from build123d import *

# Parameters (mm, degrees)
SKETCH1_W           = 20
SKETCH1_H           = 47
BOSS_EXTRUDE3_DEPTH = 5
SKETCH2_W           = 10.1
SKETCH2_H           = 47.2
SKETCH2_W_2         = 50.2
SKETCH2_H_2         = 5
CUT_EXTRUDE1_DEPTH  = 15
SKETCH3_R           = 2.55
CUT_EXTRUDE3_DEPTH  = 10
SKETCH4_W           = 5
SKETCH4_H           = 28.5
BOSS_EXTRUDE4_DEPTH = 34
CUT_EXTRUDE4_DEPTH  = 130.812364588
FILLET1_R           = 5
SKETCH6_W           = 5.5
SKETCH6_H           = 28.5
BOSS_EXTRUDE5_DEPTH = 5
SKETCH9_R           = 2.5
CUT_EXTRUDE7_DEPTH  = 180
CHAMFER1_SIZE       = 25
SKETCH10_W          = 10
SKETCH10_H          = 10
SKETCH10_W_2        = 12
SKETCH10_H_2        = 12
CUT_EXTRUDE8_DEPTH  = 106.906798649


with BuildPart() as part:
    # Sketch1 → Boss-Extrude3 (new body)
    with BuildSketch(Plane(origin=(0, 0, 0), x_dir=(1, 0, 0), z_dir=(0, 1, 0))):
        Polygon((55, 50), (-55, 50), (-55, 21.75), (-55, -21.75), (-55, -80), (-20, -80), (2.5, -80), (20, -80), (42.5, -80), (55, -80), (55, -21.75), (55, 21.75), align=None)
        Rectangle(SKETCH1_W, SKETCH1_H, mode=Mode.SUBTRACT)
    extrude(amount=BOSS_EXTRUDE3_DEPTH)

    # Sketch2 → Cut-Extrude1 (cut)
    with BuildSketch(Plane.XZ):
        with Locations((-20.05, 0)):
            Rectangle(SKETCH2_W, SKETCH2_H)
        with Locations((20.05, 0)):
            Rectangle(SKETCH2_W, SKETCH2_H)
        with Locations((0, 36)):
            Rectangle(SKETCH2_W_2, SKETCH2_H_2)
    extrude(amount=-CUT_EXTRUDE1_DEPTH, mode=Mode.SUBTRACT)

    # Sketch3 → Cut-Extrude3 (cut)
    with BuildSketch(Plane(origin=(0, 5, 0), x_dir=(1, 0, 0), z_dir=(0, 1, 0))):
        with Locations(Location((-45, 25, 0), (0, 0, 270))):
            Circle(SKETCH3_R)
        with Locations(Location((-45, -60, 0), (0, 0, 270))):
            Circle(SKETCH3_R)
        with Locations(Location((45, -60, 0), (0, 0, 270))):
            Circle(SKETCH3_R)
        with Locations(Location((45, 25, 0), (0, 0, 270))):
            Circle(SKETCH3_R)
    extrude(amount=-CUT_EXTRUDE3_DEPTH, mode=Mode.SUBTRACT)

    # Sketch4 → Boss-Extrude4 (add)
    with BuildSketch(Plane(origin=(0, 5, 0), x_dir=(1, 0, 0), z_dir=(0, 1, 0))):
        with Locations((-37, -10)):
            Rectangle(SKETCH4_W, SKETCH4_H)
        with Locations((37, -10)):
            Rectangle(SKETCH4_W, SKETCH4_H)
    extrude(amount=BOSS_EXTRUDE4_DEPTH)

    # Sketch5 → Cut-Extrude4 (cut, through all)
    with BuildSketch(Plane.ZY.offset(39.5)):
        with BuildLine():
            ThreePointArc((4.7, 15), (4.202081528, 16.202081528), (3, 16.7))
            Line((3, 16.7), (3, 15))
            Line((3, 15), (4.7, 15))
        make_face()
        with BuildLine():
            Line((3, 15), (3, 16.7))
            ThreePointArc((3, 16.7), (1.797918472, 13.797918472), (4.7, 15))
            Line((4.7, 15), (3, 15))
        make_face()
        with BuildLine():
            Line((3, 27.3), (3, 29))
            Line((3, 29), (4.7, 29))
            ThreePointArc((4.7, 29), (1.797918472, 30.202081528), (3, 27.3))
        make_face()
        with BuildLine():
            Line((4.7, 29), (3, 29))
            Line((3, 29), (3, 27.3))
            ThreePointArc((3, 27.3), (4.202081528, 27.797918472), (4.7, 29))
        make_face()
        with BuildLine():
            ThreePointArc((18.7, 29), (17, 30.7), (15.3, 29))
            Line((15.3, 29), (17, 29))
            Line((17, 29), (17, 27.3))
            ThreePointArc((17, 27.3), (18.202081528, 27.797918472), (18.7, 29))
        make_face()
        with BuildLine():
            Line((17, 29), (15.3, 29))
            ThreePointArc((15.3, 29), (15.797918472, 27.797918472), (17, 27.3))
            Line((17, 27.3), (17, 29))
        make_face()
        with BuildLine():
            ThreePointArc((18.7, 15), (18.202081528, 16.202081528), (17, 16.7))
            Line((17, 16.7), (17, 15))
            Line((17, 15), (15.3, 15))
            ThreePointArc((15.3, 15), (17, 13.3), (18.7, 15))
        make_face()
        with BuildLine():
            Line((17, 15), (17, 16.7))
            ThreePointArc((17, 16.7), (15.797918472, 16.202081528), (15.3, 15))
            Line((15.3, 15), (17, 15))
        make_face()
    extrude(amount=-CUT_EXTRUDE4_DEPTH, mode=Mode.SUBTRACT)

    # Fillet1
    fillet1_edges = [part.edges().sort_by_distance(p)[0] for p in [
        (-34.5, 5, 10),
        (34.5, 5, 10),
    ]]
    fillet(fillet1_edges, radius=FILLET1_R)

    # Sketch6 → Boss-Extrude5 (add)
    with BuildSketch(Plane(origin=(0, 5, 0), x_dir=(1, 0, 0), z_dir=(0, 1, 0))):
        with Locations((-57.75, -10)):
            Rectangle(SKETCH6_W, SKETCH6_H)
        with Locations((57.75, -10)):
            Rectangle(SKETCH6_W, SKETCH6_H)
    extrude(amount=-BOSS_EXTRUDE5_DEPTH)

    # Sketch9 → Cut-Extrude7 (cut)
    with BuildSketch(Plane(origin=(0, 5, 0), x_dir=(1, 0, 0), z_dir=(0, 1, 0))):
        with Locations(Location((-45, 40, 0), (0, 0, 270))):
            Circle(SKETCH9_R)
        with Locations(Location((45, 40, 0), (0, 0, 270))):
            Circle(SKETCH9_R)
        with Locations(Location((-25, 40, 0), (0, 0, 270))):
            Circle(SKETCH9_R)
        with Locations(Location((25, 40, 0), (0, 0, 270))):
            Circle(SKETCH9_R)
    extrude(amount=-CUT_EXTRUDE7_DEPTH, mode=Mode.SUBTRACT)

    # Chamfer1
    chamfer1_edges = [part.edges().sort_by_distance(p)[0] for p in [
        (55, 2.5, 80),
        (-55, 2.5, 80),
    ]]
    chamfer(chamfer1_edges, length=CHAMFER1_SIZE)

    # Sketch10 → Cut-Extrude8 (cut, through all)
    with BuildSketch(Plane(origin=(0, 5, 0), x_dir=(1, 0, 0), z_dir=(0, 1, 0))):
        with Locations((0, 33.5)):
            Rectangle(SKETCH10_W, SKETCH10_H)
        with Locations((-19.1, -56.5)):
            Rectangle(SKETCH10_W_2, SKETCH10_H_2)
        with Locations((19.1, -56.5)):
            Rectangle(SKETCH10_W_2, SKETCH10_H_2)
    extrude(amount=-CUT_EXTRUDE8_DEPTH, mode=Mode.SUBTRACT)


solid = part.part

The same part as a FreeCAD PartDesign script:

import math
import FreeCAD as App
import Part
import Sketcher


def edges_at(feature, points):
    """Names of the edges that pass closest to the given points."""
    edges = feature.Shape.Edges
    near = lambda p: min(range(len(edges)), key=lambda i: edges[i].distToShape(Part.Vertex(*p))[0])
    return sorted({f"Edge{near(p) + 1}" for p in points})

doc = App.newDocument("Part")
body = doc.addObject("PartDesign::Body", "Body")

sketch1 = body.newObject("Sketcher::SketchObject", "Sketch")
sketch1.AttachmentSupport = (doc.getObject("XZ_Plane"), [""])
sketch1.MapMode = "FlatFace"
sketch1.addGeometry([
    Part.LineSegment(App.Vector(55, -50, 0), App.Vector(-55, -50, 0)),
    Part.LineSegment(App.Vector(-55, -50, 0), App.Vector(-55, 80, 0)),
    Part.LineSegment(App.Vector(-55, 80, 0), App.Vector(55, 80, 0)),
    Part.LineSegment(App.Vector(55, 80, 0), App.Vector(55, -50, 0)),
    Part.LineSegment(App.Vector(10, 24, 0), App.Vector(-10, 24, 0)),
    Part.LineSegment(App.Vector(-10, 24, 0), App.Vector(-10, -24, 0)),
    Part.LineSegment(App.Vector(-10, -24, 0), App.Vector(10, -24, 0)),
    Part.LineSegment(App.Vector(10, -24, 0), App.Vector(10, 24, 0)),
], False)
sketch1.addConstraint([
    Sketcher.Constraint("Coincident", 0, 2, 1, 1),
    Sketcher.Constraint("Coincident", 1, 2, 2, 1),
    Sketcher.Constraint("Coincident", 2, 2, 3, 1),
    Sketcher.Constraint("Coincident", 3, 2, 0, 1),
    Sketcher.Constraint("Coincident", 4, 2, 5, 1),
    Sketcher.Constraint("Coincident", 5, 2, 6, 1),
    Sketcher.Constraint("Coincident", 6, 2, 7, 1),
    Sketcher.Constraint("Coincident", 7, 2, 4, 1),
    Sketcher.Constraint("Horizontal", 0),
    Sketcher.Constraint("Vertical", 1),
    Sketcher.Constraint("Horizontal", 2),
    Sketcher.Constraint("Vertical", 3),
    Sketcher.Constraint("Horizontal", 4),
    Sketcher.Constraint("Vertical", 5),
    Sketcher.Constraint("Horizontal", 6),
    Sketcher.Constraint("Vertical", 7),
    Sketcher.Constraint("Symmetric", 4, 2, 6, 2, -1, 1),
    Sketcher.Constraint("DistanceX", 0, 2, 0, 1, 110.0),
    Sketcher.Constraint("DistanceX", 4, 2, 4, 1, 20.0),
    Sketcher.Constraint("DistanceY", 1, 1, 1, 2, 130.0),
    Sketcher.Constraint("DistanceY", 5, 2, 5, 1, 47.0),
    Sketcher.Constraint("DistanceX", 0, 2, -1, 1, 55.0),
    Sketcher.Constraint("DistanceY", 0, 2, -1, 1, 50.0),
])
pad1 = body.newObject("PartDesign::Pad", "Pad")
pad1.Profile = sketch1
pad1.Length = 5
pad1.Reversed = True

sketch2 = body.newObject("Sketcher::SketchObject", "Sketch001")
sketch2.AttachmentSupport = (doc.getObject("XZ_Plane"), [""])
sketch2.MapMode = "FlatFace"
sketch2.addGeometry([
    Part.LineSegment(App.Vector(-25, 24, 0), App.Vector(-25, -24, 0)),
    Part.LineSegment(App.Vector(-25, -24, 0), App.Vector(-15, -24, 0)),
    Part.LineSegment(App.Vector(-15, -24, 0), App.Vector(-15, 24, 0)),
    Part.LineSegment(App.Vector(-15, 24, 0), App.Vector(-25, 24, 0)),
    Part.LineSegment(App.Vector(15, 24, 0), App.Vector(15, -24, 0)),
    Part.LineSegment(App.Vector(15, -24, 0), App.Vector(25, -24, 0)),
    Part.LineSegment(App.Vector(25, -24, 0), App.Vector(25, 24, 0)),
    Part.LineSegment(App.Vector(25, 24, 0), App.Vector(15, 24, 0)),
    Part.LineSegment(App.Vector(-25, 38, 0), App.Vector(-25, 34, 0)),
    Part.LineSegment(App.Vector(-25, 34, 0), App.Vector(25, 34, 0)),
    Part.LineSegment(App.Vector(25, 34, 0), App.Vector(25, 38, 0)),
    Part.LineSegment(App.Vector(25, 38, 0), App.Vector(-25, 38, 0)),
], False)
sketch2.addConstraint([
    Sketcher.Constraint("Coincident", 0, 2, 1, 1),
    Sketcher.Constraint("Coincident", 1, 2, 2, 1),
    Sketcher.Constraint("Coincident", 2, 2, 3, 1),
    Sketcher.Constraint("Coincident", 3, 2, 0, 1),
    Sketcher.Constraint("Coincident", 4, 2, 5, 1),
    Sketcher.Constraint("Coincident", 5, 2, 6, 1),
    Sketcher.Constraint("Coincident", 6, 2, 7, 1),
    Sketcher.Constraint("Coincident", 7, 2, 4, 1),
    Sketcher.Constraint("Coincident", 8, 2, 9, 1),
    Sketcher.Constraint("Coincident", 9, 2, 10, 1),
    Sketcher.Constraint("Coincident", 10, 2, 11, 1),
    Sketcher.Constraint("Coincident", 11, 2, 8, 1),
    Sketcher.Constraint("Vertical", 0),
    Sketcher.Constraint("Horizontal", 1),
    Sketcher.Constraint("Vertical", 2),
    Sketcher.Constraint("Horizontal", 3),
    Sketcher.Constraint("Vertical", 4),
    Sketcher.Constraint("Horizontal", 5),
    Sketcher.Constraint("Vertical", 6),
    Sketcher.Constraint("Horizontal", 7),
    Sketcher.Constraint("Vertical", 8),
    Sketcher.Constraint("Horizontal", 9),
    Sketcher.Constraint("Vertical", 10),
    Sketcher.Constraint("Horizontal", 11),
    Sketcher.Constraint("Symmetric", 2, 2, 4, 2, -1, 1),
    Sketcher.Constraint("Symmetric", 0, 2, 6, 2, -1, 1),
    Sketcher.Constraint("Horizontal", 1, 2, 4, 2),
    Sketcher.Constraint("Vertical", 3, 2, 8, 2),
    Sketcher.Constraint("Vertical", 6, 2, 9, 2),
    Sketcher.Constraint("DistanceY", 8, 2, 8, 1, 5.0),
    Sketcher.Constraint("DistanceX", 1, 1, 1, 2, 10.1),
    Sketcher.Constraint("DistanceX", 9, 1, 9, 2, 50.2),
    Sketcher.Constraint("DistanceY", 0, 2, 0, 1, 47.2),
    Sketcher.Constraint("DistanceY", -1, 1, 8, 2, 33.5),
])
pocket1 = body.newObject("PartDesign::Pocket", "Pocket")
pocket1.Profile = sketch2
pocket1.Length = 15

sketch3 = body.newObject("Sketcher::SketchObject", "Sketch002")
sketch3.AttachmentSupport = (doc.getObject("XZ_Plane"), [""])
sketch3.MapMode = "FlatFace"
sketch3.AttachmentOffset = App.Placement(App.Vector(0, 0, -5), App.Rotation())
sketch3.addGeometry([
    Part.Circle(App.Vector(-45, -25, 0), App.Vector(0, 0, 1), 2.5),
    Part.Circle(App.Vector(-45, 60, 0), App.Vector(0, 0, 1), 2.5),
    Part.Circle(App.Vector(45, 60, 0), App.Vector(0, 0, 1), 2.5),
    Part.Circle(App.Vector(45, -25, 0), App.Vector(0, 0, 1), 2.5),
], False)
sketch3.addConstraint([
    Sketcher.Constraint("Equal", 0, 1),
    Sketcher.Constraint("Equal", 1, 2),
    Sketcher.Constraint("Equal", 2, 3),
    Sketcher.Constraint("Symmetric", 1, 3, 2, 3, -2),
    Sketcher.Constraint("Symmetric", 0, 3, 3, 3, -2),
    Sketcher.Constraint("Vertical", 0, 3, 1, 3),
    Sketcher.Constraint("Diameter", 0, 5.1),
    Sketcher.Constraint("DistanceX", 0, 3, -1, 1, 45.0),
    Sketcher.Constraint("DistanceY", 0, 3, -1, 1, 25.0),
    Sketcher.Constraint("DistanceY", -1, 1, 1, 3, 60.0),
])
pocket2 = body.newObject("PartDesign::Pocket", "Pocket001")
pocket2.Profile = sketch3
pocket2.Length = 10
pocket2.Reversed = True

sketch4 = body.newObject("Sketcher::SketchObject", "Sketch003")
sketch4.AttachmentSupport = (doc.getObject("XZ_Plane"), [""])
sketch4.MapMode = "FlatFace"
sketch4.AttachmentOffset = App.Placement(App.Vector(0, 0, -5), App.Rotation())
sketch4.addGeometry([
    Part.LineSegment(App.Vector(-40, -4, 0), App.Vector(-40, 24, 0)),
    Part.LineSegment(App.Vector(-40, 24, 0), App.Vector(-34, 24, 0)),
    Part.LineSegment(App.Vector(-34, 24, 0), App.Vector(-34, -4, 0)),
    Part.LineSegment(App.Vector(-34, -4, 0), App.Vector(-40, -4, 0)),
    Part.LineSegment(App.Vector(34, -4, 0), App.Vector(34, 24, 0)),
    Part.LineSegment(App.Vector(34, 24, 0), App.Vector(40, 24, 0)),
    Part.LineSegment(App.Vector(40, 24, 0), App.Vector(40, -4, 0)),
    Part.LineSegment(App.Vector(40, -4, 0), App.Vector(34, -4, 0)),
], False)
sketch4.addConstraint([
    Sketcher.Constraint("Coincident", 0, 2, 1, 1),
    Sketcher.Constraint("Coincident", 1, 2, 2, 1),
    Sketcher.Constraint("Coincident", 2, 2, 3, 1),
    Sketcher.Constraint("Coincident", 3, 2, 0, 1),
    Sketcher.Constraint("Coincident", 4, 2, 5, 1),
    Sketcher.Constraint("Coincident", 5, 2, 6, 1),
    Sketcher.Constraint("Coincident", 6, 2, 7, 1),
    Sketcher.Constraint("Coincident", 7, 2, 4, 1),
    Sketcher.Constraint("Vertical", 0),
    Sketcher.Constraint("Horizontal", 1),
    Sketcher.Constraint("Vertical", 2),
    Sketcher.Constraint("Horizontal", 3),
    Sketcher.Constraint("Vertical", 4),
    Sketcher.Constraint("Horizontal", 5),
    Sketcher.Constraint("Vertical", 6),
    Sketcher.Constraint("Horizontal", 7),
    Sketcher.Constraint("Symmetric", 1, 2, 4, 2, -2),
    Sketcher.Constraint("Symmetric", 3, 2, 6, 2, -2),
    Sketcher.Constraint("DistanceX", 1, 1, 1, 2, 5.0),
    Sketcher.Constraint("DistanceY", 0, 1, 0, 2, 28.5),
    Sketcher.Constraint("DistanceX", 1, 2, 4, 2, 69.0),
    Sketcher.Constraint("DistanceY", -1, 1, 0, 2, 24.25),
])
pad2 = body.newObject("PartDesign::Pad", "Pad001")
pad2.Profile = sketch4
pad2.Length = 34
pad2.Reversed = True

sketch5 = body.newObject("Sketcher::SketchObject", "Sketch004")
sketch5.AttachmentSupport = (doc.getObject("YZ_Plane"), [""])
sketch5.MapMode = "FlatFace"
sketch5.AttachmentOffset = App.Placement(App.Vector(0, 0, -39.5), App.Rotation())
sketch5.addGeometry([
    Part.ArcOfCircle(Part.Circle(App.Vector(15, 3, 0), App.Vector(0, 0, 1), 1.7), math.radians(0), math.radians(90)),
    Part.ArcOfCircle(Part.Circle(App.Vector(15, 3, 0), App.Vector(0, 0, 1), 1.7), math.radians(90), math.radians(360)),
    Part.ArcOfCircle(Part.Circle(App.Vector(29, 3, 0), App.Vector(0, 0, 1), 1.7), math.radians(180), math.radians(450)),
    Part.ArcOfCircle(Part.Circle(App.Vector(29, 3, 0), App.Vector(0, 0, 1), 1.7), math.radians(90), math.radians(180)),
    Part.ArcOfCircle(Part.Circle(App.Vector(29, 17, 0), App.Vector(0, 0, 1), 1.7), math.radians(-90), math.radians(90)),
    Part.ArcOfCircle(Part.Circle(App.Vector(29, 17, 0), App.Vector(0, 0, 1), 1.7), math.radians(180), math.radians(270)),
    Part.ArcOfCircle(Part.Circle(App.Vector(29, 17, 0), App.Vector(0, 0, 1), 1.7), math.radians(90), math.radians(180)),
    Part.ArcOfCircle(Part.Circle(App.Vector(15, 17, 0), App.Vector(0, 0, 1), 1.7), math.radians(0), math.radians(90)),
    Part.ArcOfCircle(Part.Circle(App.Vector(15, 17, 0), App.Vector(0, 0, 1), 1.7), math.radians(-90), math.radians(0)),
    Part.ArcOfCircle(Part.Circle(App.Vector(15, 17, 0), App.Vector(0, 0, 1), 1.7), math.radians(90), math.radians(270)),
], False)
sketch5.addConstraint([
    Sketcher.Constraint("Tangent", 0, 1, 1, 2),
    Sketcher.Constraint("Coincident", 1, 1, 0, 2),
    Sketcher.Constraint("Tangent", 2, 1, 3, 2),
    Sketcher.Constraint("Coincident", 3, 1, 2, 2),
    Sketcher.Constraint("Tangent", 4, 1, 5, 2),
    Sketcher.Constraint("Tangent", 5, 1, 6, 2),
    Sketcher.Constraint("Tangent", 6, 1, 4, 2),
    Sketcher.Constraint("Tangent", 7, 1, 8, 2),
    Sketcher.Constraint("Tangent", 8, 1, 9, 2),
    Sketcher.Constraint("Tangent", 9, 1, 7, 2),
    Sketcher.Constraint("Equal", 1, 2),
    Sketcher.Constraint("Equal", 3, 4),
    Sketcher.Constraint("Equal", 6, 7),
    Sketcher.Constraint("Horizontal", 1, 3, 2, 3),
    Sketcher.Constraint("Horizontal", 6, 3, 7, 3),
    Sketcher.Constraint("Horizontal", 3, 3, 0, 1),
    Sketcher.Constraint("Horizontal", 0, 1, 2, 1),
    Sketcher.Constraint("Horizontal", 9, 3, 5, 1),
    Sketcher.Constraint("Horizontal", 5, 1, 7, 1),
    Sketcher.Constraint("Vertical", 3, 3, 4, 3),
    Sketcher.Constraint("Vertical", 1, 3, 7, 3),
    Sketcher.Constraint("Vertical", 9, 3, 1, 1),
    Sketcher.Constraint("Vertical", 6, 3, 3, 1),
    Sketcher.Constraint("Vertical", 3, 1, 4, 1),
    Sketcher.Constraint("Vertical", 4, 1, 6, 1),
    Sketcher.Constraint("Vertical", 1, 1, 8, 1),
    Sketcher.Constraint("Vertical", 8, 1, 9, 1),
    Sketcher.Constraint("Radius", 0, 1.7),
    Sketcher.Constraint("DistanceX", -1, 1, 0, 3, 15.0),
    Sketcher.Constraint("DistanceY", -1, 1, 0, 3, 3.0),
    Sketcher.Constraint("DistanceX", -1, 1, 2, 3, 29.0),
    Sketcher.Constraint("DistanceY", -1, 1, 4, 3, 17.0),
])
pocket3 = body.newObject("PartDesign::Pocket", "Pocket002")
pocket3.Profile = sketch5
pocket3.Type = "ThroughAll"
pocket3.Reversed = True
doc.recompute()

fillet = body.newObject("PartDesign::Fillet", "Fillet")
fillet.Base = (pocket3, edges_at(pocket3, [(-34.5, 5, 10), (34.5, 5, 10)]))
fillet.Radius = 5

sketch6 = body.newObject("Sketcher::SketchObject", "Sketch005")
sketch6.AttachmentSupport = (doc.getObject("XZ_Plane"), [""])
sketch6.MapMode = "FlatFace"
sketch6.AttachmentOffset = App.Placement(App.Vector(0, 0, -5), App.Rotation())
sketch6.addGeometry([
    Part.LineSegment(App.Vector(-60, -4, 0), App.Vector(-60, 24, 0)),
    Part.LineSegment(App.Vector(-60, 24, 0), App.Vector(-55, 24, 0)),
    Part.LineSegment(App.Vector(-55, 24, 0), App.Vector(-55, -4, 0)),
    Part.LineSegment(App.Vector(-55, -4, 0), App.Vector(-60, -4, 0)),
    Part.LineSegment(App.Vector(55, -4, 0), App.Vector(55, 24, 0)),
    Part.LineSegment(App.Vector(55, 24, 0), App.Vector(60, 24, 0)),
    Part.LineSegment(App.Vector(60, 24, 0), App.Vector(60, -4, 0)),
    Part.LineSegment(App.Vector(60, -4, 0), App.Vector(55, -4, 0)),
], False)
sketch6.addConstraint([
    Sketcher.Constraint("Coincident", 0, 2, 1, 1),
    Sketcher.Constraint("Coincident", 1, 2, 2, 1),
    Sketcher.Constraint("Coincident", 2, 2, 3, 1),
    Sketcher.Constraint("Coincident", 3, 2, 0, 1),
    Sketcher.Constraint("Coincident", 4, 2, 5, 1),
    Sketcher.Constraint("Coincident", 5, 2, 6, 1),
    Sketcher.Constraint("Coincident", 6, 2, 7, 1),
    Sketcher.Constraint("Coincident", 7, 2, 4, 1),
    Sketcher.Constraint("Vertical", 0),
    Sketcher.Constraint("Horizontal", 1),
    Sketcher.Constraint("Vertical", 2),
    Sketcher.Constraint("Horizontal", 3),
    Sketcher.Constraint("Vertical", 4),
    Sketcher.Constraint("Horizontal", 5),
    Sketcher.Constraint("Vertical", 6),
    Sketcher.Constraint("Horizontal", 7),
    Sketcher.Constraint("Symmetric", 1, 2, 4, 2, -2),
    Sketcher.Constraint("Symmetric", 3, 2, 6, 2, -2),
    Sketcher.Constraint("DistanceX", 1, 1, 1, 2, 5.5),
    Sketcher.Constraint("DistanceY", 0, 1, 0, 2, 28.5),
    Sketcher.Constraint("DistanceX", 1, 2, -1, 1, 55.0),
    Sketcher.Constraint("DistanceY", -1, 1, 0, 2, 24.25),
])
pad3 = body.newObject("PartDesign::Pad", "Pad002")
pad3.Profile = sketch6
pad3.Length = 5

sketch7 = body.newObject("Sketcher::SketchObject", "Sketch006")
sketch7.AttachmentSupport = (doc.getObject("XZ_Plane"), [""])
sketch7.MapMode = "FlatFace"
sketch7.AttachmentOffset = App.Placement(App.Vector(0, 0, -5), App.Rotation())
sketch7.addGeometry([
    Part.Circle(App.Vector(-45, -40, 0), App.Vector(0, 0, 1), 2.5),
    Part.Circle(App.Vector(45, -40, 0), App.Vector(0, 0, 1), 2.5),
    Part.Circle(App.Vector(-25, -40, 0), App.Vector(0, 0, 1), 2.5),
    Part.Circle(App.Vector(25, -40, 0), App.Vector(0, 0, 1), 2.5),
], False)
sketch7.addConstraint([
    Sketcher.Constraint("Equal", 0, 1),
    Sketcher.Constraint("Equal", 1, 2),
    Sketcher.Constraint("Equal", 2, 3),
    Sketcher.Constraint("Symmetric", 0, 3, 1, 3, -2),
    Sketcher.Constraint("Symmetric", 2, 3, 3, 3, -2),
    Sketcher.Constraint("Horizontal", 1, 3, 2, 3),
    Sketcher.Constraint("Diameter", 0, 5.0),
    Sketcher.Constraint("DistanceX", 0, 3, -1, 1, 45.0),
    Sketcher.Constraint("DistanceY", 0, 3, -1, 1, 40.0),
    Sketcher.Constraint("DistanceX", 2, 3, -1, 1, 25.0),
])
pocket4 = body.newObject("PartDesign::Pocket", "Pocket003")
pocket4.Profile = sketch7
pocket4.Length = 180
pocket4.Reversed = True
doc.recompute()

chamfer = body.newObject("PartDesign::Chamfer", "Chamfer")
chamfer.Base = (pocket4, edges_at(pocket4, [(55, 2.5, 80), (-55, 2.5, 80)]))
chamfer.Size = 25

sketch8 = body.newObject("Sketcher::SketchObject", "Sketch007")
sketch8.AttachmentSupport = (doc.getObject("XZ_Plane"), [""])
sketch8.MapMode = "FlatFace"
sketch8.AttachmentOffset = App.Placement(App.Vector(0, 0, -5), App.Rotation())
sketch8.addGeometry([
    Part.LineSegment(App.Vector(-5, -38, 0), App.Vector(-5, -28, 0)),
    Part.LineSegment(App.Vector(-5, -28, 0), App.Vector(5, -28, 0)),
    Part.LineSegment(App.Vector(5, -28, 0), App.Vector(5, -38, 0)),
    Part.LineSegment(App.Vector(5, -38, 0), App.Vector(-5, -38, 0)),
    Part.LineSegment(App.Vector(-25, 50, 0), App.Vector(-25, 62, 0)),
    Part.LineSegment(App.Vector(-25, 62, 0), App.Vector(-13, 62, 0)),
    Part.LineSegment(App.Vector(-13, 62, 0), App.Vector(-13, 50, 0)),
    Part.LineSegment(App.Vector(-13, 50, 0), App.Vector(-25, 50, 0)),
    Part.LineSegment(App.Vector(13, 50, 0), App.Vector(13, 62, 0)),
    Part.LineSegment(App.Vector(13, 62, 0), App.Vector(25, 62, 0)),
    Part.LineSegment(App.Vector(25, 62, 0), App.Vector(25, 50, 0)),
    Part.LineSegment(App.Vector(25, 50, 0), App.Vector(13, 50, 0)),
], False)
sketch8.addConstraint([
    Sketcher.Constraint("Coincident", 0, 2, 1, 1),
    Sketcher.Constraint("Coincident", 1, 2, 2, 1),
    Sketcher.Constraint("Coincident", 2, 2, 3, 1),
    Sketcher.Constraint("Coincident", 3, 2, 0, 1),
    Sketcher.Constraint("Coincident", 4, 2, 5, 1),
    Sketcher.Constraint("Coincident", 5, 2, 6, 1),
    Sketcher.Constraint("Coincident", 6, 2, 7, 1),
    Sketcher.Constraint("Coincident", 7, 2, 4, 1),
    Sketcher.Constraint("Coincident", 8, 2, 9, 1),
    Sketcher.Constraint("Coincident", 9, 2, 10, 1),
    Sketcher.Constraint("Coincident", 10, 2, 11, 1),
    Sketcher.Constraint("Coincident", 11, 2, 8, 1),
    Sketcher.Constraint("Vertical", 0),
    Sketcher.Constraint("Horizontal", 1),
    Sketcher.Constraint("Vertical", 2),
    Sketcher.Constraint("Horizontal", 3),
    Sketcher.Constraint("Vertical", 4),
    Sketcher.Constraint("Horizontal", 5),
    Sketcher.Constraint("Vertical", 6),
    Sketcher.Constraint("Horizontal", 7),
    Sketcher.Constraint("Vertical", 8),
    Sketcher.Constraint("Horizontal", 9),
    Sketcher.Constraint("Vertical", 10),
    Sketcher.Constraint("Horizontal", 11),
    Sketcher.Constraint("Symmetric", 5, 2, 8, 2, -2),
    Sketcher.Constraint("Symmetric", 7, 2, 10, 2, -2),
    Sketcher.Constraint("Equal", 3, 0),
    Sketcher.Constraint("Equal", 11, 4),
    Sketcher.Constraint("DistanceX", 1, 1, 1, 2, 10.0),
    Sketcher.Constraint("DistanceX", 5, 1, 5, 2, 12.0),
    Sketcher.Constraint("DistanceX", 0, 2, -1, 1, 5.0),
    Sketcher.Constraint("DistanceY", 0, 2, 4, 2, 91.0),
    Sketcher.Constraint("DistanceY", 0, 2, -1, 1, 28.5),
    Sketcher.Constraint("DistanceX", 4, 2, -1, 1, 25.1),
])
pocket5 = body.newObject("PartDesign::Pocket", "Pocket004")
pocket5.Profile = sketch8
pocket5.Type = "ThroughAll"
pocket5.Reversed = True

doc.recompute()
